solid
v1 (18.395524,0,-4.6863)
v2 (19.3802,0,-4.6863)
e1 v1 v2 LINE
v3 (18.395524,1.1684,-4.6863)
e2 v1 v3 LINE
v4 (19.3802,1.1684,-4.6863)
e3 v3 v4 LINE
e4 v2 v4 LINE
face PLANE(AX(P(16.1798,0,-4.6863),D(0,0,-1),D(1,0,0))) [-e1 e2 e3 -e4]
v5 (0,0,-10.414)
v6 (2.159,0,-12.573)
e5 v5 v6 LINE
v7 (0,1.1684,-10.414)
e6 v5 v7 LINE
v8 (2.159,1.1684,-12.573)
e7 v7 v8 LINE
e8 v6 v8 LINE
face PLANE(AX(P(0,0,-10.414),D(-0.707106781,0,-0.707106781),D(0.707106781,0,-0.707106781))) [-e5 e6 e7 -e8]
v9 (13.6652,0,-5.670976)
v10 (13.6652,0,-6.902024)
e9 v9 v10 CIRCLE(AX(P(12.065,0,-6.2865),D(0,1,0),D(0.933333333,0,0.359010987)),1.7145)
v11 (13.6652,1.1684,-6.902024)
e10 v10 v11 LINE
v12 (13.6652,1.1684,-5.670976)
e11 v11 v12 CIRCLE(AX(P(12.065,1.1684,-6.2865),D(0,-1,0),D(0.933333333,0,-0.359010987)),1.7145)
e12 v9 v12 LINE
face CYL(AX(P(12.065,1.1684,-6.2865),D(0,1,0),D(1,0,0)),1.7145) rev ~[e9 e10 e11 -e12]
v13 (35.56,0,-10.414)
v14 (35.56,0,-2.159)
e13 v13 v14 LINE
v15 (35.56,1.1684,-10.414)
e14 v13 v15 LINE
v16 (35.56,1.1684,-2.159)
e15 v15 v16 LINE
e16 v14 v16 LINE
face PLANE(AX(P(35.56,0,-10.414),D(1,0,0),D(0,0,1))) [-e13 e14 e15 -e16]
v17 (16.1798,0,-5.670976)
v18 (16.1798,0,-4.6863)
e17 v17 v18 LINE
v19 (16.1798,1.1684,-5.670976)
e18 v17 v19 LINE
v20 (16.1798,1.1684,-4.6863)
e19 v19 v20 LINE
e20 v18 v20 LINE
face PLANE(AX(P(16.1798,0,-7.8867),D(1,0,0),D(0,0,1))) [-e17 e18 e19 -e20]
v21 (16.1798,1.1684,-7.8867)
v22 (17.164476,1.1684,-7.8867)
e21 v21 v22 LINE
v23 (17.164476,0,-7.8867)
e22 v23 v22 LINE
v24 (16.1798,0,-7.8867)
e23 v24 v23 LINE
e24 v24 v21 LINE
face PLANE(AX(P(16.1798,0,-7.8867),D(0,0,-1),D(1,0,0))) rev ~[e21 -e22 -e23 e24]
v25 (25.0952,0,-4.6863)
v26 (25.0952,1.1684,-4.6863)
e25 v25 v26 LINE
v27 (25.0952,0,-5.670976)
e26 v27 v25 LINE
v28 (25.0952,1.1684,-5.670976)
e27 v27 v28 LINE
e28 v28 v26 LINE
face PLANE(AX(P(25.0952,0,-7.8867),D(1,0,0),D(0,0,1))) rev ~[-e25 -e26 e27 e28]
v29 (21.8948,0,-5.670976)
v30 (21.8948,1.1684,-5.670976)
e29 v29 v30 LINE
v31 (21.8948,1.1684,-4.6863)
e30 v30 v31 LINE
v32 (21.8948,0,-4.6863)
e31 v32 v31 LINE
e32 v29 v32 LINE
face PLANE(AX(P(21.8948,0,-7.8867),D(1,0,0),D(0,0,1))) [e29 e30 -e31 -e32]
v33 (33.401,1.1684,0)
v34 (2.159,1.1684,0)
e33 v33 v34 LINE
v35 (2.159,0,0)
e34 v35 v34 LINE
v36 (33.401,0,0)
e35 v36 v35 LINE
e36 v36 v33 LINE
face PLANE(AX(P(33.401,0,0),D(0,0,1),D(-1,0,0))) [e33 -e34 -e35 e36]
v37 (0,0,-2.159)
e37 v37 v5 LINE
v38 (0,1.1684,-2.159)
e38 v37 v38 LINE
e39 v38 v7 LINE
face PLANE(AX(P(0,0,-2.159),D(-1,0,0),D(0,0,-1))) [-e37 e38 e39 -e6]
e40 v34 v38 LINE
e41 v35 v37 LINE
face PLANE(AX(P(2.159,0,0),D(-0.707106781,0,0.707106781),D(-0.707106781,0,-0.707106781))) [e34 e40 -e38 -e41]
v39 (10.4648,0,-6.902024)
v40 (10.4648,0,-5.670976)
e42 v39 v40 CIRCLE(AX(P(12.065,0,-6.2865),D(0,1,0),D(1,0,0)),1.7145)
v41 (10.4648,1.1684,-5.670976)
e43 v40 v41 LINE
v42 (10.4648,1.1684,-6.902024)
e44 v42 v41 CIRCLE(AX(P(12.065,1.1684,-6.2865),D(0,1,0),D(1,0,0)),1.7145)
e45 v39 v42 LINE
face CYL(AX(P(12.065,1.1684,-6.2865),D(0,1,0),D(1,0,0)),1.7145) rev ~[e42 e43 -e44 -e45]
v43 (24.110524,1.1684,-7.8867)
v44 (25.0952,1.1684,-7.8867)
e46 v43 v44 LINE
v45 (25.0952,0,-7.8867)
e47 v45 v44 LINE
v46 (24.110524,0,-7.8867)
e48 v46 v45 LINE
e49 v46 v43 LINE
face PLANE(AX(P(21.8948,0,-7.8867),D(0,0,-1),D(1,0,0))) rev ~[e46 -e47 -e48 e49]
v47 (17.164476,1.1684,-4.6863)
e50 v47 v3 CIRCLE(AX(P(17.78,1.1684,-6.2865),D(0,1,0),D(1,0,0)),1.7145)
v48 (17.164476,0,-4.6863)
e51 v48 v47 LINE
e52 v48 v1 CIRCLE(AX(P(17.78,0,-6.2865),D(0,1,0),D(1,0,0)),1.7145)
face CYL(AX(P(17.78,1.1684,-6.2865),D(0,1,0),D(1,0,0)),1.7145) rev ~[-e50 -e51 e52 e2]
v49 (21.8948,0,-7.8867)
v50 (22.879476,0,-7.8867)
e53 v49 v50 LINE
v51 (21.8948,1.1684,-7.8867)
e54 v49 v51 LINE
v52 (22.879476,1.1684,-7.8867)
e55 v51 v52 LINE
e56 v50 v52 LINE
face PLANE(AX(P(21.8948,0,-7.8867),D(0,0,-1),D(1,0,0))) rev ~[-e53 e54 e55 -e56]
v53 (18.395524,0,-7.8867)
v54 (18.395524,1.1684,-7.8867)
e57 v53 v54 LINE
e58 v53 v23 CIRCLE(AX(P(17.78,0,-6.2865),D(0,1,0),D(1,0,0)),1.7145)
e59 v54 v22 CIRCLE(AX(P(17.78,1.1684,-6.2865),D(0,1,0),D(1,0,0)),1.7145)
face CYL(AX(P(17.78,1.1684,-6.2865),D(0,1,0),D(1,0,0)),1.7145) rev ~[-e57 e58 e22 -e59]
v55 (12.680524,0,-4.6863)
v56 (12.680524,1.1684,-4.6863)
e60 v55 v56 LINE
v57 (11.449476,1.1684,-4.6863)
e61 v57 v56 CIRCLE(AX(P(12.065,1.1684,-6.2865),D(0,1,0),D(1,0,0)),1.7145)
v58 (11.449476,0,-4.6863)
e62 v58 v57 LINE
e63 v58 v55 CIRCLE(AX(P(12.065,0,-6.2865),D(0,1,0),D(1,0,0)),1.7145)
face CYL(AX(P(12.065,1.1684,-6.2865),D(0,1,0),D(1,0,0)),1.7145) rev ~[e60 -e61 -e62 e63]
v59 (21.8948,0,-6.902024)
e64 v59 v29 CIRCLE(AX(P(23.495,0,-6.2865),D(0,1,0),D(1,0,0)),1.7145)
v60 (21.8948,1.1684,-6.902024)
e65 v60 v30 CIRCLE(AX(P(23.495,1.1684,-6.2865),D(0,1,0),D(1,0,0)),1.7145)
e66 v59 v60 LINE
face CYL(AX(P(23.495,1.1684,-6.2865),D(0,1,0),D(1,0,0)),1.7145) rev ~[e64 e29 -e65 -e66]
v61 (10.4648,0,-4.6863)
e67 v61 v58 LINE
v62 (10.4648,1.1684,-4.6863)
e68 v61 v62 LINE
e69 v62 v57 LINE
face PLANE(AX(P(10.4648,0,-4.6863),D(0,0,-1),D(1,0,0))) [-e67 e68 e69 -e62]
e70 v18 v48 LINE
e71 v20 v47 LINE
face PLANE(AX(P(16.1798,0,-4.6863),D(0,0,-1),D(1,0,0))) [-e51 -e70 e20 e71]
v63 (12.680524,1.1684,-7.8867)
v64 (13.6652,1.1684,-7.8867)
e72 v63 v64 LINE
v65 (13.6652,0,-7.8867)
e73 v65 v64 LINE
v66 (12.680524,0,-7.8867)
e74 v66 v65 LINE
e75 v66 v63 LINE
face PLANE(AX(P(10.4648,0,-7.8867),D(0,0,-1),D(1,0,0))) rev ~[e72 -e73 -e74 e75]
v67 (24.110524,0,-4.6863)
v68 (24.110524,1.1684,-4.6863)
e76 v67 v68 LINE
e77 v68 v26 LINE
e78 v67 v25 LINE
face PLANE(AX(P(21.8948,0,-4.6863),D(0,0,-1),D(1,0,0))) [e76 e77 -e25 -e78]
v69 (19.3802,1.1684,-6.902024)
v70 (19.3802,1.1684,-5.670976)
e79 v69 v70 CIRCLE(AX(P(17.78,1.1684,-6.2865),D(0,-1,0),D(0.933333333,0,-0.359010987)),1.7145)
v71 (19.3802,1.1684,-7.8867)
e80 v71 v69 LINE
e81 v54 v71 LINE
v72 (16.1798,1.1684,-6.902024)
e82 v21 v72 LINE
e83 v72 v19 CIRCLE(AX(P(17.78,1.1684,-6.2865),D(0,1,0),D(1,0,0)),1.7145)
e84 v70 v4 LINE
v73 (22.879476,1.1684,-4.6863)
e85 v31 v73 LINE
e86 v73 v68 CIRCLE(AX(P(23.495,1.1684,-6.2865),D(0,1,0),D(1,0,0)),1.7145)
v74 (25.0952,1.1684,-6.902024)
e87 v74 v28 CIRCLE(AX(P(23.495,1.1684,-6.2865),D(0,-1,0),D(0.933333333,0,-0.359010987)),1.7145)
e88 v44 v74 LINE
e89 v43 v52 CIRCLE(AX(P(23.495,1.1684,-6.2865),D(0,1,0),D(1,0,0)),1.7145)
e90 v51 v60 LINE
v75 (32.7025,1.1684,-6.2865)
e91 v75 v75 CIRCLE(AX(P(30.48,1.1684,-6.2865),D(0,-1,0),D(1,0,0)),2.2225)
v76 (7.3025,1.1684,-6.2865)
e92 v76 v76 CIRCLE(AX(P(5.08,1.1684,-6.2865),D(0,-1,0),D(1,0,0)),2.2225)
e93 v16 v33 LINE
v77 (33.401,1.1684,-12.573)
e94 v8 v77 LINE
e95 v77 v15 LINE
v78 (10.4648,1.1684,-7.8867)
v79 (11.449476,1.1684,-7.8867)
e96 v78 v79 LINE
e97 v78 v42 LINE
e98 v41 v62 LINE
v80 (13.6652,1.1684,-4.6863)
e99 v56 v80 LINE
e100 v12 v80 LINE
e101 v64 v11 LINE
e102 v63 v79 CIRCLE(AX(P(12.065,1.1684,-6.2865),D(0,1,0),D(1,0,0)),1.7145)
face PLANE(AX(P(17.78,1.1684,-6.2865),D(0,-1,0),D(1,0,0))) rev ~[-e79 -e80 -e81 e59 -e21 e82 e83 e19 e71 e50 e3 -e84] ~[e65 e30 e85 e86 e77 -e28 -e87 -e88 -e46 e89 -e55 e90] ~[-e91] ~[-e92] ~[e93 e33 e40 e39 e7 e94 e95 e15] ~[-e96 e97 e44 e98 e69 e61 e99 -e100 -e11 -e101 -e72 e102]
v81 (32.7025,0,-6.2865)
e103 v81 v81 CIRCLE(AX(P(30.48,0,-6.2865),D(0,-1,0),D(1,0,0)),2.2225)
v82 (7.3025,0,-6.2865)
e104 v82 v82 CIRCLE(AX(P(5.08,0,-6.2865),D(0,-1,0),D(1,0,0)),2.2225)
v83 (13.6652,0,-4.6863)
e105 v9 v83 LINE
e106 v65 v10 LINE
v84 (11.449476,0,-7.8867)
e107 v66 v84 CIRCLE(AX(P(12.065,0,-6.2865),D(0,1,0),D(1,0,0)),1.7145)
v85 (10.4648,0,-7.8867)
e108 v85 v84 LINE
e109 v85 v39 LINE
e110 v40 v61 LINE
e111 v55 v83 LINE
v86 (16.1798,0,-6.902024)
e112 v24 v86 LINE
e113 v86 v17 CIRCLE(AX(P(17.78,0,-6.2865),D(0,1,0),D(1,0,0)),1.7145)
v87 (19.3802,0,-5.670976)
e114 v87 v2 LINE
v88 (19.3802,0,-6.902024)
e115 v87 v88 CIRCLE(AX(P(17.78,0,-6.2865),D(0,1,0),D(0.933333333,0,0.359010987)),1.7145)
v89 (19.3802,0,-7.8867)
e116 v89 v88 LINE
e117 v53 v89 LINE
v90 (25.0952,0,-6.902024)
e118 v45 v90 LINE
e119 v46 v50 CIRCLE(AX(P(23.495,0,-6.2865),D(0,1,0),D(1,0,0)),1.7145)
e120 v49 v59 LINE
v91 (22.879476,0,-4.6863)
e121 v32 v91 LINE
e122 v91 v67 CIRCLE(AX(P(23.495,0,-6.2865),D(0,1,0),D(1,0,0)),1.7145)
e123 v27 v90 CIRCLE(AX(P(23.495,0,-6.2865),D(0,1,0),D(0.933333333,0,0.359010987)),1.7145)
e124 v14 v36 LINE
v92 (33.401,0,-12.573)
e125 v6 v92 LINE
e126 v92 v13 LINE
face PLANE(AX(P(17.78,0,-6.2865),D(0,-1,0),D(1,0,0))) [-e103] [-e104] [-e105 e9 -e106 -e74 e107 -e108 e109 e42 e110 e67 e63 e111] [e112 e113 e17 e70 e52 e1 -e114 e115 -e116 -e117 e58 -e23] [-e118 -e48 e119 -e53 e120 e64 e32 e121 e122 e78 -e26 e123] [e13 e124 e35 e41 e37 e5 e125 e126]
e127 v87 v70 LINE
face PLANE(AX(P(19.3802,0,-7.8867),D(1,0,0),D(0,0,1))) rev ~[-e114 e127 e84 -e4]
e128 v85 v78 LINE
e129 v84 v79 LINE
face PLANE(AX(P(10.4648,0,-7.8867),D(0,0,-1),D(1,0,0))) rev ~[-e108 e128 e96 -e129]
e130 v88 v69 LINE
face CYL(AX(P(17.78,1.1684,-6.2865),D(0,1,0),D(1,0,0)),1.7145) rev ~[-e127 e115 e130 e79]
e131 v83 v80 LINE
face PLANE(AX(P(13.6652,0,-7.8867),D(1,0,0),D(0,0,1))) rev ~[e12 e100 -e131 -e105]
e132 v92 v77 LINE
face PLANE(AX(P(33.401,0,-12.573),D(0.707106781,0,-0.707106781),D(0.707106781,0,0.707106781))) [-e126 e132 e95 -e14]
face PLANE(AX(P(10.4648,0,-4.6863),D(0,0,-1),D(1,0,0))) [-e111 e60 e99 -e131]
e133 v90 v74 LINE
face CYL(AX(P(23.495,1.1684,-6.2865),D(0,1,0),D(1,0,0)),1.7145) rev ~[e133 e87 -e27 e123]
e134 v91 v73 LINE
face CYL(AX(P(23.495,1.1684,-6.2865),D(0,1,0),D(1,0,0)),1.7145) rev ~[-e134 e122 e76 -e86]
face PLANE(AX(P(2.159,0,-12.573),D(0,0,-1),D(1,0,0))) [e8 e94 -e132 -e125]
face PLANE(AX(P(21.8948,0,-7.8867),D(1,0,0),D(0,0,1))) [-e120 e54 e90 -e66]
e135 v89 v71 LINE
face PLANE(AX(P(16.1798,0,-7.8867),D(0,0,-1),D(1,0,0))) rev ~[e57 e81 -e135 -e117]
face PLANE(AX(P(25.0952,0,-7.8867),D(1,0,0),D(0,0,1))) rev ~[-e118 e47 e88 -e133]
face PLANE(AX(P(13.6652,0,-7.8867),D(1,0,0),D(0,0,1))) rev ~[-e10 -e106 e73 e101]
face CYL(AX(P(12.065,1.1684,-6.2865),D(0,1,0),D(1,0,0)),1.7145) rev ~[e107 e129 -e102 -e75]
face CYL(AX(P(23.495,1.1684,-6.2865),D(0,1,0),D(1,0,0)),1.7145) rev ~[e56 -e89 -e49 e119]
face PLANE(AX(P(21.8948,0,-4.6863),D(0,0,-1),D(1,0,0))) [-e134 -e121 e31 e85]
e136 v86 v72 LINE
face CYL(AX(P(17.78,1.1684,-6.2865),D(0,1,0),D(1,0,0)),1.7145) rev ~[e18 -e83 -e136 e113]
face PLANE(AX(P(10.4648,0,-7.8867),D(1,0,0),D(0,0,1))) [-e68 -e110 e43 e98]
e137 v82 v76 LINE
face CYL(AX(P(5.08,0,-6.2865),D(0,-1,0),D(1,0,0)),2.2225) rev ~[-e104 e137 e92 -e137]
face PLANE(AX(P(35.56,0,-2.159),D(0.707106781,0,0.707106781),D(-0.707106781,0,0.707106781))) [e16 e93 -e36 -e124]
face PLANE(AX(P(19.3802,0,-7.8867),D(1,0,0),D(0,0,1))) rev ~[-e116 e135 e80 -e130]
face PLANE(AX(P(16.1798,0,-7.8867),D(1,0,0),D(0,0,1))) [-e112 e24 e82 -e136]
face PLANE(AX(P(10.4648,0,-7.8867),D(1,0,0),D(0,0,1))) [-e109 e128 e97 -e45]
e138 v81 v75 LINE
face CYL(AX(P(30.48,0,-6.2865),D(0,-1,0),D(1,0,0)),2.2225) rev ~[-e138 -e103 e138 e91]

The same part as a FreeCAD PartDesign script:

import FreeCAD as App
import Part
import Sketcher

V = App.Vector
Q = App.Units.Quantity

doc = App.newDocument("Part")
params = doc.addObject("Spreadsheet::Sheet", "Params")
for row, (alias, value) in enumerate([
    ("sketch1_diameter", "0.175 in"),
    ("sketch1_width", "1.23 in"),
    ("sketch1_width2", "0.126 in"),
    ("sketch1_height", "0.325 in"),
    ("pad1_length", "0.046 in"),
    ("sketch2_diameter", "0.135 in"),
    ("pocket1_length", "0.1 in"),
], start=1):
    params.set(f"A{row}", alias)
    params.set(f"B{row}", "=" + value)
    params.setAlias(f"B{row}", alias)

body = doc.addObject("PartDesign::Body", "Body")

sketch1 = body.newObject("Sketcher::SketchObject", "Sketch")
sketch1.AttachmentSupport = (doc.getObject("XZ_Plane"), [""])
sketch1.MapMode = "FlatFace"
sketch1.addGeometry(Part.LineSegment(V(33.4, -12.6, 0), V(35.6, -10.4, 0)), False)
sketch1.addGeometry(Part.LineSegment(V(35.6, -10.4, 0), V(35.6, -2.2, 0)), False)
sketch1.addGeometry(Part.LineSegment(V(35.6, -2.2, 0), V(33.4, 0, 0)), False)
sketch1.addGeometry(Part.LineSegment(V(33.4, 0, 0), V(2.2, 0, 0)), False)
sketch1.addGeometry(Part.LineSegment(V(2.2, 0, 0), V(0, -2.2, 0)), False)
sketch1.addGeometry(Part.LineSegment(V(0, -2.2, 0), V(0, -10.4, 0)), False)
sketch1.addGeometry(Part.LineSegment(V(0, -10.4, 0), V(2.2, -12.6, 0)), False)
sketch1.addGeometry(Part.LineSegment(V(2.2, -12.6, 0), V(33.4, -12.6, 0)), False)
sketch1.addGeometry(Part.Circle(V(5.1, -6.3, 0), V(0, 0, 1), 2.2), False)
sketch1.addGeometry(Part.LineSegment(V(13.7, -7.9, 0), V(10.5, -7.9, 0)), False)
sketch1.addGeometry(Part.LineSegment(V(10.5, -7.9, 0), V(10.5, -4.7, 0)), False)
sketch1.addGeometry(Part.LineSegment(V(10.5, -4.7, 0), V(13.7, -4.7, 0)), False)
sketch1.addGeometry(Part.LineSegment(V(13.7, -4.7, 0), V(13.7, -7.9, 0)), False)
sketch1.addGeometry(Part.LineSegment(V(19.4, -7.9, 0), V(16.2, -7.9, 0)), False)
sketch1.addGeometry(Part.LineSegment(V(16.2, -7.9, 0), V(16.2, -4.7, 0)), False)
sketch1.addGeometry(Part.LineSegment(V(16.2, -4.7, 0), V(19.4, -4.7, 0)), False)
sketch1.addGeometry(Part.LineSegment(V(19.4, -4.7, 0), V(19.4, -7.9, 0)), False)
sketch1.addGeometry(Part.LineSegment(V(25.1, -7.9, 0), V(21.9, -7.9, 0)), False)
sketch1.addGeometry(Part.LineSegment(V(21.9, -7.9, 0), V(21.9, -4.7, 0)), False)
sketch1.addGeometry(Part.LineSegment(V(21.9, -4.7, 0), V(25.1, -4.7, 0)), False)
sketch1.addGeometry(Part.LineSegment(V(25.1, -4.7, 0), V(25.1, -7.9, 0)), False)
sketch1.addGeometry(Part.Circle(V(30.5, -6.3, 0), V(0, 0, 1), 2.2), False)
sketch1.addConstraint(Sketcher.Constraint("Coincident", 0, 2, 1, 1))
sketch1.addConstraint(Sketcher.Constraint("Coincident", 1, 2, 2, 1))
sketch1.addConstraint(Sketcher.Constraint("Coincident", 2, 2, 3, 1))
sketch1.addConstraint(Sketcher.Constraint("Coincident", 3, 2, 4, 1))
sketch1.addConstraint(Sketcher.Constraint("Coincident", 4, 2, 5, 1))
sketch1.addConstraint(Sketcher.Constraint("Coincident", 5, 2, 6, 1))
sketch1.addConstraint(Sketcher.Constraint("Coincident", 6, 2, 7, 1))
sketch1.addConstraint(Sketcher.Constraint("Coincident", 7, 2, 0, 1))
sketch1.addConstraint(Sketcher.Constraint("Coincident", 9, 2, 10, 1))
sketch1.addConstraint(Sketcher.Constraint("Coincident", 10, 2, 11, 1))
sketch1.addConstraint(Sketcher.Constraint("Coincident", 11, 2, 12, 1))
sketch1.addConstraint(Sketcher.Constraint("Coincident", 12, 2, 9, 1))
sketch1.addConstraint(Sketcher.Constraint("Coincident", 13, 2, 14, 1))
sketch1.addConstraint(Sketcher.Constraint("Coincident", 14, 2, 15, 1))
sketch1.addConstraint(Sketcher.Constraint("Coincident", 15, 2, 16, 1))
sketch1.addConstraint(Sketcher.Constraint("Coincident", 16, 2, 13, 1))
sketch1.addConstraint(Sketcher.Constraint("Coincident", 17, 2, 18, 1))
sketch1.addConstraint(Sketcher.Constraint("Coincident", 18, 2, 19, 1))
sketch1.addConstraint(Sketcher.Constraint("Coincident", 19, 2, 20, 1))
sketch1.addConstraint(Sketcher.Constraint("Coincident", 20, 2, 17, 1))
sketch1.addConstraint(Sketcher.Constraint("Vertical", 1))
sketch1.addConstraint(Sketcher.Constraint("Horizontal", 3))
sketch1.addConstraint(Sketcher.Constraint("Vertical", 5))
sketch1.addConstraint(Sketcher.Constraint("Horizontal", 7))
sketch1.addConstraint(Sketcher.Constraint("Horizontal", 9))
sketch1.addConstraint(Sketcher.Constraint("Vertical", 10))
sketch1.addConstraint(Sketcher.Constraint("Horizontal", 11))
sketch1.addConstraint(Sketcher.Constraint("Vertical", 12))
sketch1.addConstraint(Sketcher.Constraint("Horizontal", 13))
sketch1.addConstraint(Sketcher.Constraint("Vertical", 14))
sketch1.addConstraint(Sketcher.Constraint("Horizontal", 15))
sketch1.addConstraint(Sketcher.Constraint("Vertical", 16))
sketch1.addConstraint(Sketcher.Constraint("Horizontal", 17))
sketch1.addConstraint(Sketcher.Constraint("Vertical", 18))
sketch1.addConstraint(Sketcher.Constraint("Horizontal", 19))
sketch1.addConstraint(Sketcher.Constraint("Vertical", 20))
sketch1.addConstraint(Sketcher.Constraint("Equal", 8, 21))
sketch1.addConstraint(Sketcher.Constraint("PointOnObject", 2, 2, -1))
sketch1.addConstraint(Sketcher.Constraint("PointOnObject", 4, 2, -2))
sketch1.addConstraint(Sketcher.Constraint("Perpendicular", 0, 2))
sketch1.addConstraint(Sketcher.Constraint("Perpendicular", 2, 4))
sketch1.addConstraint(Sketcher.Constraint("Perpendicular", 4, 6))
sketch1.addConstraint(Sketcher.Constraint("Horizontal", 8, 3, 21, 3))
sketch1.addConstraint(Sketcher.Constraint("Horizontal", 1, 2, 4, 2))
sketch1.addConstraint(Sketcher.Constraint("Horizontal", 0, 2, 5, 2))
sketch1.addConstraint(Sketcher.Constraint("Horizontal", 12, 2, 13, 2))
sketch1.addConstraint(Sketcher.Constraint("Horizontal", 11, 2, 14, 2))
sketch1.addConstraint(Sketcher.Constraint("Horizontal", 16, 2, 17, 2))
sketch1.addConstraint(Sketcher.Constraint("Horizontal", 15, 2, 18, 2))
sketch1.addConstraint(Sketcher.Constraint("Vertical", 3, 2, 6, 2))
sketch1.addConstraint(Sketcher.Constraint("Vertical", 2, 2, 7, 2))
sketch1.addConstraint(Sketcher.Constraint("Equal", 11, 13))
sketch1.addConstraint(Sketcher.Constraint("Equal", 15, 17))
sketch1.addConstraint(Sketcher.Constraint("Equal", 19, 10))
sketch1.addConstraint(Sketcher.Constraint("Diameter", 8, Q("0.175 in")))
sketch1.addConstraint(Sketcher.Constraint("DistanceX", 8, 3, 21, 3, Q("1 in")))
sketch1.addConstraint(Sketcher.Constraint("DistanceX", 3, 2, 3, 1, Q("1.23 in")))
sketch1.addConstraint(Sketcher.Constraint("DistanceX", -1, 1, 8, 3, Q("0.2 in")))
sketch1.addConstraint(Sketcher.Constraint("DistanceX", -1, 1, 0, 2, Q("1.4 in")))
sketch1.addConstraint(Sketcher.Constraint("DistanceX", 9, 2, 9, 1, Q("0.126 in")))
sketch1.addConstraint(Sketcher.Constraint("DistanceY", 1, 1, 1, 2, Q("0.325 in")))
sketch1.addConstraint(Sketcher.Constraint("DistanceX", -1, 1, 9, 2, Q("0.412 in")))
sketch1.addConstraint(Sketcher.Constraint("DistanceX", -1, 1, 13, 2, Q("0.637 in")))
sketch1.addConstraint(Sketcher.Constraint("DistanceX", -1, 1, 17, 2, Q("0.862 in")))
sketch1.addConstraint(Sketcher.Constraint("DistanceY", 9, 2, 8, 3, Q("0.063 in")))
sketch1.addConstraint(Sketcher.Constraint("DistanceY", 8, 3, -1, 1, Q("0.2475 in")))
sketch1.setExpression("Constraints[54]", "Params.sketch1_diameter")
sketch1.setExpression("Constraints[56]", "Params.sketch1_width")
sketch1.setExpression("Constraints[59]", "Params.sketch1_width2")
sketch1.setExpression("Constraints[60]", "Params.sketch1_height")
pad1 = body.newObject("PartDesign::Pad", "Pad")
pad1.Profile = sketch1
pad1.setExpression("Length", "Params.pad1_length")
pad1.Reversed = True

sketch2 = body.newObject("Sketcher::SketchObject", "Sketch001")
sketch2.AttachmentSupport = (doc.getObject("XZ_Plane"), [""])
sketch2.MapMode = "FlatFace"
sketch2.AttachmentOffset = App.Placement(V(0, 0, -0.046 * 25.4), App.Rotation())
sketch2.addGeometry(Part.Circle(V(12.1, -6.3, 0), V(0, 0, 1), 1.7), False)
sketch2.addGeometry(Part.Circle(V(17.8, -6.3, 0), V(0, 0, 1), 1.7), False)
sketch2.addGeometry(Part.Circle(V(23.5, -6.3, 0), V(0, 0, 1), 1.7), False)
sketch2.addConstraint(Sketcher.Constraint("Equal", 0, 1))
sketch2.addConstraint(Sketcher.Constraint("Equal", 1, 2))
sketch2.addConstraint(Sketcher.Constraint("Horizontal", 0, 3, 1, 3))
sketch2.addConstraint(Sketcher.Constraint("Horizontal", 1, 3, 2, 3))
sketch2.addConstraint(Sketcher.Constraint("Diameter", 0, Q("0.135 in")))
sketch2.addConstraint(Sketcher.Constraint("DistanceX", -1, 1, 1, 3, Q("0.7 in")))
sketch2.addConstraint(Sketcher.Constraint("DistanceX", 0, 3, 2, 3, Q("0.45 in")))
sketch2.addConstraint(Sketcher.Constraint("DistanceX", -1, 1, 0, 3, Q("0.475 in")))
sketch2.addConstraint(Sketcher.Constraint("DistanceY", 0, 3, -1, 1, Q("0.2475 in")))
sketch2.setExpression("Constraints[4]", "Params.sketch2_diameter")
pocket1 = body.newObject("PartDesign::Pocket", "Pocket")
pocket1.Profile = sketch2
pocket1.setExpression("Length", "Params.pocket1_length")
pocket1.Reversed = True

doc.recompute()
